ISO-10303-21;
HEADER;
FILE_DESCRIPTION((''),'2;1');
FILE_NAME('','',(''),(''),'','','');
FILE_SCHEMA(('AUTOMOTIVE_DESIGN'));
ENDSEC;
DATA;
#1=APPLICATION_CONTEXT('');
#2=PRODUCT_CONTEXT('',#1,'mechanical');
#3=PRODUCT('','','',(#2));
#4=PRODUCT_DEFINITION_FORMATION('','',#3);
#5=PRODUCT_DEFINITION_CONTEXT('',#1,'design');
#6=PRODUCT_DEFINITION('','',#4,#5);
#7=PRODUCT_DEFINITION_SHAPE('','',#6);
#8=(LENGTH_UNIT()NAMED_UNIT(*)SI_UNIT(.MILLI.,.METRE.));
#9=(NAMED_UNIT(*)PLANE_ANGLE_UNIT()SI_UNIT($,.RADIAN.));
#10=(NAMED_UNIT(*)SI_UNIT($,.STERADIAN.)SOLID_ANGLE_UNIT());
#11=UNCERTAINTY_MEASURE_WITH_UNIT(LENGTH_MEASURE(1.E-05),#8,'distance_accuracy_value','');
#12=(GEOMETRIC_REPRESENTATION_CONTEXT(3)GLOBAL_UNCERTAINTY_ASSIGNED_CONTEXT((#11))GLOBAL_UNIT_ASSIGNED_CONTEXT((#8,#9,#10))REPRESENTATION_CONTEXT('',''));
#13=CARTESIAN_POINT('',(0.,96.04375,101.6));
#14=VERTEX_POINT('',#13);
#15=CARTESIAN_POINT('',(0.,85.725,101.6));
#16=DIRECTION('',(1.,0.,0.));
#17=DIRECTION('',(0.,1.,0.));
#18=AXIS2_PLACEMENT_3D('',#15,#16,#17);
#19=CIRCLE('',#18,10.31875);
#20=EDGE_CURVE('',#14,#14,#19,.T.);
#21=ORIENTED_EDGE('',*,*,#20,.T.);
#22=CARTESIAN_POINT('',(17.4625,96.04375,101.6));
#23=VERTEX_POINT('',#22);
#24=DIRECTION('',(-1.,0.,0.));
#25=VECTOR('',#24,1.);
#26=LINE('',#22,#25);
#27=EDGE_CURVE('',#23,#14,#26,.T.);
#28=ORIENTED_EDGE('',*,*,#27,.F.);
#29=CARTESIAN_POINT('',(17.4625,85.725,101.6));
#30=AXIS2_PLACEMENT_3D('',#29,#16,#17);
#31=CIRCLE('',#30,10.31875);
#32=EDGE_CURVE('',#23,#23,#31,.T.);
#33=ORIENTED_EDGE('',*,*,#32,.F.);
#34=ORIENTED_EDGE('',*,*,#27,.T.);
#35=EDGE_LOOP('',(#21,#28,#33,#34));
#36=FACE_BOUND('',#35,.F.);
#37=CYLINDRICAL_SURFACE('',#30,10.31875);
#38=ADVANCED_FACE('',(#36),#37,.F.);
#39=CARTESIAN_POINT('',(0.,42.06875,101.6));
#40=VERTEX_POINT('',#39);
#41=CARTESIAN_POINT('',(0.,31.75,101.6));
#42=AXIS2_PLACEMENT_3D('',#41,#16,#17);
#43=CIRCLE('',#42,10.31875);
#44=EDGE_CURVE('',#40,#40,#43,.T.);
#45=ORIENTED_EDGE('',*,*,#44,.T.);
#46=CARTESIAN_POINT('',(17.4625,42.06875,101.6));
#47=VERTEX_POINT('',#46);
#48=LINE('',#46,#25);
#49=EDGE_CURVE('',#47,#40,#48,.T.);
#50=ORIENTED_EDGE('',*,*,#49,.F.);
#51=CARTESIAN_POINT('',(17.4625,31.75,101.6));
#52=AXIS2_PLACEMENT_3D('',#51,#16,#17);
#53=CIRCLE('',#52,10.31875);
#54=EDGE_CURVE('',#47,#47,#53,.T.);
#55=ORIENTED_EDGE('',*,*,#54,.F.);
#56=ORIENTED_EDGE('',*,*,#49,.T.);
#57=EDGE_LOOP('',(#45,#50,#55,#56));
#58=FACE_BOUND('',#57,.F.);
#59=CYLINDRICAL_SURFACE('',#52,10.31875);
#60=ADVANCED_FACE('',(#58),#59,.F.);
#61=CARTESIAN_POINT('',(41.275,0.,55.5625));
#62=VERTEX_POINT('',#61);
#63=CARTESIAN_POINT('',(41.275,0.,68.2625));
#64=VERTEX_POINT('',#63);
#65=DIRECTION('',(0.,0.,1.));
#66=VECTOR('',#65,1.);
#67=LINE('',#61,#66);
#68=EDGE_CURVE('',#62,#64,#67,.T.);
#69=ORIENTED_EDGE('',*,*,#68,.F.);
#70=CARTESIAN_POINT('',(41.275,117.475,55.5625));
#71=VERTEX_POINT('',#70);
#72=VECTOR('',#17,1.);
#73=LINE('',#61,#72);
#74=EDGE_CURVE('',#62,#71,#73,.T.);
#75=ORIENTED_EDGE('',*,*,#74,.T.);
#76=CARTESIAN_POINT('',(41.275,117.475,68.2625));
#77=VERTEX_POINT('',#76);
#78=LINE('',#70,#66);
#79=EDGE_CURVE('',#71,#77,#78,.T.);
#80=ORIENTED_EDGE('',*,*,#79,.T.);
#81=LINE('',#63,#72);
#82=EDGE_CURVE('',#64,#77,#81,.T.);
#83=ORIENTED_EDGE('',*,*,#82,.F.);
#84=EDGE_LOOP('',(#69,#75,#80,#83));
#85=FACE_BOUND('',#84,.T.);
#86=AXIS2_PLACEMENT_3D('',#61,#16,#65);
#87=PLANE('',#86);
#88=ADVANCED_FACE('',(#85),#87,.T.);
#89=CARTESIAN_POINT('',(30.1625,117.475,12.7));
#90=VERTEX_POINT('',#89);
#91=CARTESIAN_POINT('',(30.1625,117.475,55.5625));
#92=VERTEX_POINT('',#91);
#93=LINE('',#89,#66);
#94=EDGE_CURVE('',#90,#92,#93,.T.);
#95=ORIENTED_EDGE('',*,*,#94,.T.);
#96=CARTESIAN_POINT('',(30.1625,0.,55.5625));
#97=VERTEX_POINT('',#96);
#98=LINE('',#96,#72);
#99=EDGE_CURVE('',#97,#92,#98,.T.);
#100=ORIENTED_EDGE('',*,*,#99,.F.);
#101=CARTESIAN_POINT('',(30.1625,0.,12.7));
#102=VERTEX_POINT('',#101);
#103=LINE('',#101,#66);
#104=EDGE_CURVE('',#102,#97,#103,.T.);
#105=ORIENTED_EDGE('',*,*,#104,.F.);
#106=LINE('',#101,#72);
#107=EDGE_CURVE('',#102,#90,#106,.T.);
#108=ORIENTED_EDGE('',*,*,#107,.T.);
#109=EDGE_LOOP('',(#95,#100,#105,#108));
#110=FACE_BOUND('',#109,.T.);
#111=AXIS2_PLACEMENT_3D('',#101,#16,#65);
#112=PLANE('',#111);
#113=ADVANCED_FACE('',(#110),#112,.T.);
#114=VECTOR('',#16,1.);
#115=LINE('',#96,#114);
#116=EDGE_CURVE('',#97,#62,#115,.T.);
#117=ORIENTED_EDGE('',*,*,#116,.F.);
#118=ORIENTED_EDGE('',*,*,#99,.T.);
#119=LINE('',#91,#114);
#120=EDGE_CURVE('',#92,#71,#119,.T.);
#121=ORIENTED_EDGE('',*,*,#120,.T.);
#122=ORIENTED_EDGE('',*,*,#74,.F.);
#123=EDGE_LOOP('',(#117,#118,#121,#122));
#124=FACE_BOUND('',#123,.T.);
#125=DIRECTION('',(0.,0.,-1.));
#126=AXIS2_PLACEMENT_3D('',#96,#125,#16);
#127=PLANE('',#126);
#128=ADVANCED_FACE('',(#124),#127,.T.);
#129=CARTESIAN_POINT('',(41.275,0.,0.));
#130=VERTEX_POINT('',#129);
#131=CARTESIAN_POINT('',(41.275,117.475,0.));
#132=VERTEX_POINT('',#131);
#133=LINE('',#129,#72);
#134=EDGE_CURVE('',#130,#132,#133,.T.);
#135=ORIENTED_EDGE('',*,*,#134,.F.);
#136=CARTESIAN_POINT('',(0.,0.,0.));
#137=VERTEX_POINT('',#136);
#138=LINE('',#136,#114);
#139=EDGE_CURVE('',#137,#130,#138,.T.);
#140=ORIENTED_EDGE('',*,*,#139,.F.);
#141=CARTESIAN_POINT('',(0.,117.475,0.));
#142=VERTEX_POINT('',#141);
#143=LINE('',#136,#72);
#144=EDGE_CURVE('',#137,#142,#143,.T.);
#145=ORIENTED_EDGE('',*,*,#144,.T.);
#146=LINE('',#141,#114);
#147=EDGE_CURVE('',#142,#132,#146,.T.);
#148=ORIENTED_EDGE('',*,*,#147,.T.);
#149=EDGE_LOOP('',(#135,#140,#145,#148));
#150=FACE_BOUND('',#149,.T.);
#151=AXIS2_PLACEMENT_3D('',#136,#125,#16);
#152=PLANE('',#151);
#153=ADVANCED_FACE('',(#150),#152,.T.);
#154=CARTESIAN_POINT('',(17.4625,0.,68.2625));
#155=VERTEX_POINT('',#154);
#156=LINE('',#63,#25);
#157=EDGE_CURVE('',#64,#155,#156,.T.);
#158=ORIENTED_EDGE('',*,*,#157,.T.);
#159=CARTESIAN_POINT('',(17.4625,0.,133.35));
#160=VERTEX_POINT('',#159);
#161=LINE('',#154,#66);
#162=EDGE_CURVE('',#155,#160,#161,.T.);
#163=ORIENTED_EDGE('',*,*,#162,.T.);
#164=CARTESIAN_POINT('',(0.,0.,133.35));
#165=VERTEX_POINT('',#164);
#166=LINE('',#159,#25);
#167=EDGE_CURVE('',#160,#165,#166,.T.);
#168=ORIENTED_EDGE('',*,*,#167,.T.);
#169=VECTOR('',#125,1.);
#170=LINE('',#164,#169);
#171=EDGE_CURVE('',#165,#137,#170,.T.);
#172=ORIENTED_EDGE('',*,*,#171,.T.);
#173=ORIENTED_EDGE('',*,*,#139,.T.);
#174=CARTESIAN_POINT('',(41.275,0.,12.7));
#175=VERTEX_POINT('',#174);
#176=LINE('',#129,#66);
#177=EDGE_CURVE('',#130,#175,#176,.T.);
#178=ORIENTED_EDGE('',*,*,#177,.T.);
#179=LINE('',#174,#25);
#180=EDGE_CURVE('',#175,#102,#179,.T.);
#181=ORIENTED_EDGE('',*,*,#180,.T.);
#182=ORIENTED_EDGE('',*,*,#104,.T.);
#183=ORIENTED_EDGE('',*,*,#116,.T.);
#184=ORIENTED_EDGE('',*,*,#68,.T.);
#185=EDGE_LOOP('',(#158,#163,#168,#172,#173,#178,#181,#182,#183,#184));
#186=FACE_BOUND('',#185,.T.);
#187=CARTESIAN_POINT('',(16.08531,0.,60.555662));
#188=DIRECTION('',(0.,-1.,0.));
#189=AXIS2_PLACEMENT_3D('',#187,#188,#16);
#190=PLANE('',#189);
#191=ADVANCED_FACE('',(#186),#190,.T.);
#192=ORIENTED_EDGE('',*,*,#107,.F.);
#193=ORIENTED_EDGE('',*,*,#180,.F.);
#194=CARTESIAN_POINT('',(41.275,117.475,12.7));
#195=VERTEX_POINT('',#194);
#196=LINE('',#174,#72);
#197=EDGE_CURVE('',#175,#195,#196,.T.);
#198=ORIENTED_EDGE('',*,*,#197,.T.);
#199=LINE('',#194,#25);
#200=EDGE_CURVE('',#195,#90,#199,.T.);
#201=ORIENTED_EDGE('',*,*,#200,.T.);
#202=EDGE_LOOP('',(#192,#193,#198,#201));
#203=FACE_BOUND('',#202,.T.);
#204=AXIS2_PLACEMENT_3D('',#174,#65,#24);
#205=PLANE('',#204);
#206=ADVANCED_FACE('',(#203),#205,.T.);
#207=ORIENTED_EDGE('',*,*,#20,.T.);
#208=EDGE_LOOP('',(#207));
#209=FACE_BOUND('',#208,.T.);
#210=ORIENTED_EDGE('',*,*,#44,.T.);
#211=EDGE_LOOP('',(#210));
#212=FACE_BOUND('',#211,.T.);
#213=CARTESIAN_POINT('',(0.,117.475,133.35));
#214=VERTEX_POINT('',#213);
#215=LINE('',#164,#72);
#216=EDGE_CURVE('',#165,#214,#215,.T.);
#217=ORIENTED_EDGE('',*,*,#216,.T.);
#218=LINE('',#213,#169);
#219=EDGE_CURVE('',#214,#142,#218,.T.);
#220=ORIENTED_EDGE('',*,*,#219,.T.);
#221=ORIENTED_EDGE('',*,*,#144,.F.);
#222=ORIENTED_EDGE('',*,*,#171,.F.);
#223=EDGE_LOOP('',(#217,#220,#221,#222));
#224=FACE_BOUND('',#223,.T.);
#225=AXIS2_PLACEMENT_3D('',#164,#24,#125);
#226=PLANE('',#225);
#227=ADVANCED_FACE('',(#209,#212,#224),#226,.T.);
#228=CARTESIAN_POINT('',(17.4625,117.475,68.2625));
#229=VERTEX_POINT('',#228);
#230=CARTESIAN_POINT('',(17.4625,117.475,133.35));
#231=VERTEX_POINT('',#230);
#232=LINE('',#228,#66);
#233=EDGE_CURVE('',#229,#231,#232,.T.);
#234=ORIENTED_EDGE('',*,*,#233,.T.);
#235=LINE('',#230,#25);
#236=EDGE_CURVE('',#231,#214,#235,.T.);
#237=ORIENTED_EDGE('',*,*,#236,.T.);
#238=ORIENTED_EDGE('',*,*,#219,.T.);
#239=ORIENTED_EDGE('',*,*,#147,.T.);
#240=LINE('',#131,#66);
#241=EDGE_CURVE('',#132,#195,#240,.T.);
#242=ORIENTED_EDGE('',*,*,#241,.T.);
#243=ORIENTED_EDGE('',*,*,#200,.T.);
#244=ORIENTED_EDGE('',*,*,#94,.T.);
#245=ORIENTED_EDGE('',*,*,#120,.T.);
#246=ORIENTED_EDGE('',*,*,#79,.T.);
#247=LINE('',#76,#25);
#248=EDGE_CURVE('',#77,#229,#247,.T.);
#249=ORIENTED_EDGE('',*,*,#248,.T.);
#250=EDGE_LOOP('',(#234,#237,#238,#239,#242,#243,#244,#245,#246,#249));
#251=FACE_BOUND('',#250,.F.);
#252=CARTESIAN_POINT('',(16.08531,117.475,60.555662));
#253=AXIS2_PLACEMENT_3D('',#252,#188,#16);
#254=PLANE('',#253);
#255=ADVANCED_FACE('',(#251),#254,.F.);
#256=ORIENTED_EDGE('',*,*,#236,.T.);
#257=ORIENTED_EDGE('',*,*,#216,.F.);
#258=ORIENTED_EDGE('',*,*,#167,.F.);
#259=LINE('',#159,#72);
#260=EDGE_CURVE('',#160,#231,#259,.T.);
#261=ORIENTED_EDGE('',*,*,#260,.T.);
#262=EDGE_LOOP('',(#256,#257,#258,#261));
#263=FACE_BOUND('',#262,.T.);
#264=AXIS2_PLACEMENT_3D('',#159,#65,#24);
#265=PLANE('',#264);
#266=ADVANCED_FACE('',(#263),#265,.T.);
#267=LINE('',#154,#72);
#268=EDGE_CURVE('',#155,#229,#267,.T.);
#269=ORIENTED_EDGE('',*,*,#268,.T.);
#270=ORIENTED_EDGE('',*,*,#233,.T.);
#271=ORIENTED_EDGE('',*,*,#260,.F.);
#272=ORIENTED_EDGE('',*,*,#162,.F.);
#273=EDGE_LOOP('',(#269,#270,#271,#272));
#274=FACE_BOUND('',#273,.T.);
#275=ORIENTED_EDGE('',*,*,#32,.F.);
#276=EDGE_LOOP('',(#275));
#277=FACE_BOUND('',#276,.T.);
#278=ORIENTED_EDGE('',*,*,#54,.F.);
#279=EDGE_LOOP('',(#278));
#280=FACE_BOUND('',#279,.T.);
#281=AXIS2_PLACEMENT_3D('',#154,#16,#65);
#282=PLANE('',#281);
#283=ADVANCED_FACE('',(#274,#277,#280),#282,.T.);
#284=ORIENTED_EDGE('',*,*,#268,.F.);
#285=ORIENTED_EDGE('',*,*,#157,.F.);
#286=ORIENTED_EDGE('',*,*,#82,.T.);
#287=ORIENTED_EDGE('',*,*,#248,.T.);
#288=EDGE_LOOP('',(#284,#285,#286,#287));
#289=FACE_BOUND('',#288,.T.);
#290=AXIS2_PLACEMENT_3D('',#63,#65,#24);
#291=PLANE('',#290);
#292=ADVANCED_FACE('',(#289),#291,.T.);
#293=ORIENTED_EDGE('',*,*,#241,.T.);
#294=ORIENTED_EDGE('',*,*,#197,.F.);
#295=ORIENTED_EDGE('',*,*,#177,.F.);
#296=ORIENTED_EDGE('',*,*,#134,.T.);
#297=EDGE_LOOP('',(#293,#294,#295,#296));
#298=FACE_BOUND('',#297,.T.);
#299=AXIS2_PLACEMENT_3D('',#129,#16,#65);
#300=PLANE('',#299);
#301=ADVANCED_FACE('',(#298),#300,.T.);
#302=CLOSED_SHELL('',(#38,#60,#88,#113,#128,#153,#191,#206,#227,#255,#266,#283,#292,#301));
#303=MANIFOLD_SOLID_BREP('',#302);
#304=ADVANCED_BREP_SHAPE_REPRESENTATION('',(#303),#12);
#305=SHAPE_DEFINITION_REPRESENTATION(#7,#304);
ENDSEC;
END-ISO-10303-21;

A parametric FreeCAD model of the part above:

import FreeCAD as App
import Part
import Sketcher
from FreeCAD import Vector
Q = App.Units.Quantity

doc = App.newDocument("Part")
body = doc.addObject("PartDesign::Body", "Body")

# Sketch on XZ plane
sketch1 = doc.addObject("Sketcher::SketchObject", "Sketch")
body.addObject(sketch1)
sketch1.AttachmentSupport = (doc.XZ_Plane, [""])
sketch1.MapMode = "FlatFace"
sketch1.addGeometry([
    Part.LineSegment(Vector(0, 133, 0), Vector(0, 0, 0)),  # 0
    Part.LineSegment(Vector(0, 0, 0), Vector(41, 0, 0)),  # 1
    Part.LineSegment(Vector(41, 0, 0), Vector(41, 13, 0)),  # 2
    Part.LineSegment(Vector(41, 13, 0), Vector(30, 13, 0)),  # 3
    Part.LineSegment(Vector(30, 13, 0), Vector(30, 56, 0)),  # 4
    Part.LineSegment(Vector(30, 56, 0), Vector(41, 56, 0)),  # 5
    Part.LineSegment(Vector(41, 56, 0), Vector(41, 68, 0)),  # 6
    Part.LineSegment(Vector(41, 68, 0), Vector(17, 68, 0)),  # 7
    Part.LineSegment(Vector(17, 68, 0), Vector(17, 133, 0)),  # 8
    Part.LineSegment(Vector(17, 133, 0), Vector(0, 133, 0)),  # 9
], False)
sketch1.addConstraint([
    Sketcher.Constraint("Coincident", 0, 2, 1, 1),
    Sketcher.Constraint("Coincident", 1, 2, 2, 1),
    Sketcher.Constraint("Coincident", 2, 2, 3, 1),
    Sketcher.Constraint("Coincident", 3, 2, 4, 1),
    Sketcher.Constraint("Coincident", 4, 2, 5, 1),
    Sketcher.Constraint("Coincident", 5, 2, 6, 1),
    Sketcher.Constraint("Coincident", 6, 2, 7, 1),
    Sketcher.Constraint("Coincident", 7, 2, 8, 1),
    Sketcher.Constraint("Coincident", 8, 2, 9, 1),
    Sketcher.Constraint("Coincident", 9, 2, 0, 1),
    Sketcher.Constraint("Vertical", 0),
    Sketcher.Constraint("Horizontal", 1),
    Sketcher.Constraint("Vertical", 2),
    Sketcher.Constraint("Horizontal", 3),
    Sketcher.Constraint("Vertical", 4),
    Sketcher.Constraint("Horizontal", 5),
    Sketcher.Constraint("Vertical", 6),
    Sketcher.Constraint("Horizontal", 7),
    Sketcher.Constraint("Vertical", 8),
    Sketcher.Constraint("Horizontal", 9),
    Sketcher.Constraint("Coincident", 0, 2, -1, 1),
    Sketcher.Constraint("Vertical", 2, 2, 5, 2),
    Sketcher.Constraint("Equal", 2, 6),
    Sketcher.Constraint("DistanceY", 2, 1, 2, 2, Q("0.5 in")),
    Sketcher.Constraint("DistanceY", 0, 2, 0, 1, Q("5.25 in")),
    Sketcher.Constraint("DistanceX", 7, 2, 4, 2, Q("0.5 in")),
    Sketcher.Constraint("DistanceX", 1, 1, 1, 2, Q("1.625 in")),
    Sketcher.Constraint("DistanceX", 3, 2, 3, 1, Q("0.4375 in")),
    Sketcher.Constraint("DistanceY", 4, 1, 4, 2, Q("1.6875 in")),
])
pad1 = doc.addObject("PartDesign::Pad", "Pad")
body.addObject(pad1)
pad1.Profile = sketch1
pad1.Length = Q("4.625 in")
pad1.Reversed = True

# Sketch on YZ plane
sketch2 = doc.addObject("Sketcher::SketchObject", "Sketch001")
body.addObject(sketch2)
sketch2.AttachmentSupport = (doc.YZ_Plane, [""])
sketch2.MapMode = "FlatFace"
sketch2.AttachmentOffset = App.Placement(Vector(0, 0, 0.6875 * 25.4), App.Rotation())
sketch2.addGeometry([
    Part.Circle(Vector(86, 102, 0), Vector(0, 0, 1), 10),
    Part.Circle(Vector(32, 102, 0), Vector(0, 0, 1), 10),
], False)
sketch2.addConstraint([
    Sketcher.Constraint("Equal", 0, 1),
    Sketcher.Constraint("Horizontal", 0, 3, 1, 3),
    Sketcher.Constraint("Diameter", 0, Q("0.8125 in")),
    Sketcher.Constraint("DistanceY", -1, 1, 0, 3, Q("4 in")),
    Sketcher.Constraint("DistanceX", -1, 1, 1, 3, Q("1.25 in")),
    Sketcher.Constraint("DistanceX", -1, 1, 0, 3, Q("3.375 in")),
])
pocket1 = doc.addObject("PartDesign::Pocket", "Pocket")
body.addObject(pocket1)
pocket1.Profile = sketch2
pocket1.Length = Q("0.6875 in")

doc.recompute()
